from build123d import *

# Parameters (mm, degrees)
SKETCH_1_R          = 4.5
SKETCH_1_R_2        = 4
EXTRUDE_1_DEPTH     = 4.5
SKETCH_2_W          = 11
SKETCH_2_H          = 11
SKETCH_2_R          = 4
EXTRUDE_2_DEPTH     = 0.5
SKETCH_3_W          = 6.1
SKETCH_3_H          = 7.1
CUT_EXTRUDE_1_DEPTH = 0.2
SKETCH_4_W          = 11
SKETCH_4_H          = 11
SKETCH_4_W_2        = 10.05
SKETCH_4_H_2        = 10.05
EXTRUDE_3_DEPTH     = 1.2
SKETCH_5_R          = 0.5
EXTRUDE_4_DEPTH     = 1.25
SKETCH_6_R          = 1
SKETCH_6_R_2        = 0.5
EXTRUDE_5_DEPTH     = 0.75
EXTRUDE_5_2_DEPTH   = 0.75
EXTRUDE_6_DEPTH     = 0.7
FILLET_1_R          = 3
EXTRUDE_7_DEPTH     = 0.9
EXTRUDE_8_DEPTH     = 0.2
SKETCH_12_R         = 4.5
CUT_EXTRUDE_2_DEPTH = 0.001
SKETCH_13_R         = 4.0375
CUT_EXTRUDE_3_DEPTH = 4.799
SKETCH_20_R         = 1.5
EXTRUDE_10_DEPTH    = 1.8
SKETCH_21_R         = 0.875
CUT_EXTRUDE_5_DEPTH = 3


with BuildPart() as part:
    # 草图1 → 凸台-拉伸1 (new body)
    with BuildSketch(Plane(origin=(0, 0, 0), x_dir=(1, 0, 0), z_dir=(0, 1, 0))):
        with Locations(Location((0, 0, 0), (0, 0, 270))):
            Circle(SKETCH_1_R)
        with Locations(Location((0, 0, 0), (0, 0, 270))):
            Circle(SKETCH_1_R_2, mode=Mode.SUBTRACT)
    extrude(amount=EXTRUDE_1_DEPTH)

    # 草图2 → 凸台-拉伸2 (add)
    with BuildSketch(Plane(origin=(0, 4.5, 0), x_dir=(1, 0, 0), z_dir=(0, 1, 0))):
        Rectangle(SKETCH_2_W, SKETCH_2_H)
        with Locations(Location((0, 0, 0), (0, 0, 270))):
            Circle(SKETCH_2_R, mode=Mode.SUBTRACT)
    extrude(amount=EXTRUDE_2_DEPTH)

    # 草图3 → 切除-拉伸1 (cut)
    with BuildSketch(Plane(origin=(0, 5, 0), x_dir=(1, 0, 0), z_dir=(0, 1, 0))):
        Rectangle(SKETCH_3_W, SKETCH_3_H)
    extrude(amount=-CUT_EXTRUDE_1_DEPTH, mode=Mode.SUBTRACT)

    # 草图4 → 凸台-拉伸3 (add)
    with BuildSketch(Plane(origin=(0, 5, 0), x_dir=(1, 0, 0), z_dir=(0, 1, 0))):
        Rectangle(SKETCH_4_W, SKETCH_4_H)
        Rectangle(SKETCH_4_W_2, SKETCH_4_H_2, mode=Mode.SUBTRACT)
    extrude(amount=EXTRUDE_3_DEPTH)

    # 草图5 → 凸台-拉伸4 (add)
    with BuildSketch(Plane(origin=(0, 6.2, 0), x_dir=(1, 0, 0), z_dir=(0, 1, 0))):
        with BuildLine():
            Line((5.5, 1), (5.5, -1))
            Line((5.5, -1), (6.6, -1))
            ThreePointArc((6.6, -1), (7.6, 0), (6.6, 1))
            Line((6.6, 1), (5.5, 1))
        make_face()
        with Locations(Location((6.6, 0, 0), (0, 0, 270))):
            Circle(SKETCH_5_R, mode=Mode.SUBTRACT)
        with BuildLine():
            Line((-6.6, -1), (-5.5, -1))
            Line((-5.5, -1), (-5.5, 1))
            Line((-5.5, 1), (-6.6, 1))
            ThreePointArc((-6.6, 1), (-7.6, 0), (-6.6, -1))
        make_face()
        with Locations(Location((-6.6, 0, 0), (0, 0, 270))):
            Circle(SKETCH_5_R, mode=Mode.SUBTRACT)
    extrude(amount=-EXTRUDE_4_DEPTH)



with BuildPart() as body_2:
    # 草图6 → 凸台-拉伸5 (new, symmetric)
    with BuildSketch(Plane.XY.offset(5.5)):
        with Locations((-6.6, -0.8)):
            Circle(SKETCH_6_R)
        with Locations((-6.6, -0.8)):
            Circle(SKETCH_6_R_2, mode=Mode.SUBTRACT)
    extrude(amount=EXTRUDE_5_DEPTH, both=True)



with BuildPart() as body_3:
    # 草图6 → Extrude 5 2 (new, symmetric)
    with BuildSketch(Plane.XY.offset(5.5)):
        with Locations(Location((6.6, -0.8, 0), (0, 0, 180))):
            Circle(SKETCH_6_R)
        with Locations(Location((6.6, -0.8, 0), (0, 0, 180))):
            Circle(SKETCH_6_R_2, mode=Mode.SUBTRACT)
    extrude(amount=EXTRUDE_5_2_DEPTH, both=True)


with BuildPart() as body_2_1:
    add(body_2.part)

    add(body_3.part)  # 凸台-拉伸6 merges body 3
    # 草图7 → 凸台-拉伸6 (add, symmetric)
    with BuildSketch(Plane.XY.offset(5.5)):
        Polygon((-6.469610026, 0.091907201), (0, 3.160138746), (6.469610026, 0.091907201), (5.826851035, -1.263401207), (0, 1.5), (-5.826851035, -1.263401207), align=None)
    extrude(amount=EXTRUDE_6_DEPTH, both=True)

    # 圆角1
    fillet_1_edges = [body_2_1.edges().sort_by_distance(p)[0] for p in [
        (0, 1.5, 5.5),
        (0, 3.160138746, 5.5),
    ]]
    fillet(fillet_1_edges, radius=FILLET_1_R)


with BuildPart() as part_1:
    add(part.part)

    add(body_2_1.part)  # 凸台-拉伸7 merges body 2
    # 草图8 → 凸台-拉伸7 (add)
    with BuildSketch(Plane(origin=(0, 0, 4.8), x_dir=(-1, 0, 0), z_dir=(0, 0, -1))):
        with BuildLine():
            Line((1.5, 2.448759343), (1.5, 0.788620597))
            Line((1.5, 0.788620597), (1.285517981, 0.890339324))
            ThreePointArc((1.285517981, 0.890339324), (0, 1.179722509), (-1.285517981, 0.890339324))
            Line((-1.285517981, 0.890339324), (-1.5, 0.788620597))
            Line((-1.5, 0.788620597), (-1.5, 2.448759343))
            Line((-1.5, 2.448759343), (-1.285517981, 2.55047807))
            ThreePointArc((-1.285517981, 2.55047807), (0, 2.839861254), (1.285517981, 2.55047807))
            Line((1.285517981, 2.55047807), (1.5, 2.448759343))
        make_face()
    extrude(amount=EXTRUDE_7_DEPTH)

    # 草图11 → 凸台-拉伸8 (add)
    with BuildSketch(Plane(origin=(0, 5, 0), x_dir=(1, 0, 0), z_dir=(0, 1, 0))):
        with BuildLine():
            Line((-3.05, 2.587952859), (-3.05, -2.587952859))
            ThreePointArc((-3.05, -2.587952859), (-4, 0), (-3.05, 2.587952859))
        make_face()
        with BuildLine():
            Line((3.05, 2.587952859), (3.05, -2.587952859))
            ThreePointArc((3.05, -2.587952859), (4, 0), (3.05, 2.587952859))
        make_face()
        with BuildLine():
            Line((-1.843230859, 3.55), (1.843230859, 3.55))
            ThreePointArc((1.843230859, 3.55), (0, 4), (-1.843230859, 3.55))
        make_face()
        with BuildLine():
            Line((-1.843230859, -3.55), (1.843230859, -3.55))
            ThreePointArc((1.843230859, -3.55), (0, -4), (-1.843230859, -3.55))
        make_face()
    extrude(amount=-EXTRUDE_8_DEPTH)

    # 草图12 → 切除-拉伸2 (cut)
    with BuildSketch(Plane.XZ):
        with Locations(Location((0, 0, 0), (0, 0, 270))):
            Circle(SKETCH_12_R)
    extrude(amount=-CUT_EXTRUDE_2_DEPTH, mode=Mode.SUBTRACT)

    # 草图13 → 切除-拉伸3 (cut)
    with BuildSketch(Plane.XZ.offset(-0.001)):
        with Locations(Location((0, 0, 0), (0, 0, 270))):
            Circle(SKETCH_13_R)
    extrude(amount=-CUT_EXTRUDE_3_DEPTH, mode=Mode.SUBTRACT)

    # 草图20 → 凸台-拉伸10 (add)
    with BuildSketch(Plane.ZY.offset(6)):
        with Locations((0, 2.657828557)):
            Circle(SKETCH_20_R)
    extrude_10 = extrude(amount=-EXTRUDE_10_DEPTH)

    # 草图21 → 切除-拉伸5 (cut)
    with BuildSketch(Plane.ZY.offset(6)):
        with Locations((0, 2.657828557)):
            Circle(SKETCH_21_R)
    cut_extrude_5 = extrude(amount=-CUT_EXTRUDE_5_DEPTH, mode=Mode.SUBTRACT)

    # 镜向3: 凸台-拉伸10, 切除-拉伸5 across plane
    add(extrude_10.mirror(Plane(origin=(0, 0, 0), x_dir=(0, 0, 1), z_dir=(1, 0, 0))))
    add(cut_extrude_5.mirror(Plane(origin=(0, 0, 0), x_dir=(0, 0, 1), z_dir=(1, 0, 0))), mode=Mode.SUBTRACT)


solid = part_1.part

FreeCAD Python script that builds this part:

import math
import FreeCAD as App
import Part
import Sketcher

V = App.Vector


def edges_at(feature, points):
    """Names of the edges that pass closest to the given points."""
    edges = feature.Shape.Edges
    near = lambda p: min(range(len(edges)), key=lambda i: edges[i].distToShape(Part.Vertex(*p))[0])
    return sorted({f"Edge{near(p) + 1}" for p in points})


def add_polygon(sketch, points):
    """Adds a closed chain of lines whose ends are joined by coincident constraints."""
    first, n = sketch.GeometryCount, len(points)
    for a, b in zip(points, points[1:] + points[:1]):
        sketch.addGeometry(Part.LineSegment(App.Vector(*a, 0), App.Vector(*b, 0)), False)
    for i in range(n):
        sketch.addConstraint(Sketcher.Constraint("Coincident", first + i, 2, first + (i + 1) % n, 1))

doc = App.newDocument("Part")
body = doc.addObject("PartDesign::Body", "Body")

# Sketch on XZ plane
sketch1 = body.newObject("Sketcher::SketchObject", "Sketch")
sketch1.AttachmentSupport = (doc.getObject("XZ_Plane"), [""])
sketch1.MapMode = "FlatFace"
sketch1.addGeometry([
    Part.Circle(V(0, 0, 0), V(0, 0, 1), 4.5),
    Part.Circle(V(0, 0, 0), V(0, 0, 1), 4),
], False)
sketch1.addConstraint([
    Sketcher.Constraint("Coincident", 0, 3, -1, 1),
    Sketcher.Constraint("Coincident", 1, 3, -1, 1),
    Sketcher.Constraint("Diameter", 0, 9.0),
    Sketcher.Constraint("Diameter", 1, 8.0),
])
pad1 = body.newObject("PartDesign::Pad", "Pad")
pad1.Profile = sketch1
pad1.Length = 4.5
pad1.Reversed = True

# Sketch on XZ plane
sketch2 = body.newObject("Sketcher::SketchObject", "Sketch001")
sketch2.AttachmentSupport = (doc.getObject("XZ_Plane"), [""])
sketch2.MapMode = "FlatFace"
sketch2.AttachmentOffset = App.Placement(V(0, 0, -4.5), App.Rotation())
add_polygon(sketch2, [(-5.5, -5.5), (-5.5, 5.5), (5.5, 5.5), (5.5, -5.5)])  # lines 0-3
sketch2.addGeometry(Part.Circle(V(0, 0, 0), V(0, 0, 1), 4), False)  # 4
sketch2.addConstraint([
    Sketcher.Constraint("Vertical", 0),
    Sketcher.Constraint("Horizontal", 1),
    Sketcher.Constraint("Vertical", 2),
    Sketcher.Constraint("Horizontal", 3),
    Sketcher.Constraint("Coincident", 4, 3, -1, 1),
    Sketcher.Constraint("Symmetric", 0, 2, 2, 2, -1, 1),
    Sketcher.Constraint("Equal", 3, 0),
    Sketcher.Constraint("Diameter", 4, 8.0),
    Sketcher.Constraint("DistanceX", 1, 1, 1, 2, 11.0),
])
pad2 = body.newObject("PartDesign::Pad", "Pad001")
pad2.Profile = sketch2
pad2.Length = 0.5
pad2.Reversed = True

# Sketch on XZ plane
sketch3 = body.newObject("Sketcher::SketchObject", "Sketch002")
sketch3.AttachmentSupport = (doc.getObject("XZ_Plane"), [""])
sketch3.MapMode = "FlatFace"
sketch3.AttachmentOffset = App.Placement(V(0, 0, -5), App.Rotation())
add_polygon(sketch3, [(-3, -4), (-3, 4), (3, 4), (3, -4)])  # lines 0-3
sketch3.addConstraint([
    Sketcher.Constraint("Vertical", 0),
    Sketcher.Constraint("Horizontal", 1),
    Sketcher.Constraint("Vertical", 2),
    Sketcher.Constraint("Horizontal", 3),
    Sketcher.Constraint("Symmetric", 0, 2, 2, 2, -1, 1),
    Sketcher.Constraint("DistanceX", 1, 1, 1, 2, 6.1),
    Sketcher.Constraint("DistanceY", 0, 1, 0, 2, 7.1),
])
pocket1 = body.newObject("PartDesign::Pocket", "Pocket")
pocket1.Profile = sketch3
pocket1.Length = 0.2
pocket1.Reversed = True

# Sketch on XZ plane
sketch4 = body.newObject("Sketcher::SketchObject", "Sketch003")
sketch4.AttachmentSupport = (doc.getObject("XZ_Plane"), [""])
sketch4.MapMode = "FlatFace"
sketch4.AttachmentOffset = App.Placement(V(0, 0, -5), App.Rotation())
add_polygon(sketch4, [(-6, -6), (-6, 6), (6, 6), (6, -6)])  # lines 0-3
add_polygon(sketch4, [(5, 5), (-5, 5), (-5, -5), (5, -5)])  # lines 4-7
sketch4.addConstraint([
    Sketcher.Constraint("Vertical", 0),
    Sketcher.Constraint("Horizontal", 1),
    Sketcher.Constraint("Vertical", 2),
    Sketcher.Constraint("Horizontal", 3),
    Sketcher.Constraint("Horizontal", 4),
    Sketcher.Constraint("Vertical", 5),
    Sketcher.Constraint("Horizontal", 6),
    Sketcher.Constraint("Vertical", 7),
    Sketcher.Constraint("Symmetric", 0, 2, 2, 2, -1, 1),
    Sketcher.Constraint("Symmetric", 4, 2, 6, 2, -1, 1),
    Sketcher.Constraint("Equal", 3, 0),
    Sketcher.Constraint("Equal", 6, 5),
    Sketcher.Constraint("DistanceX", 1, 1, 1, 2, 11.0),
    Sketcher.Constraint("DistanceX", 4, 2, 4, 1, 10.05),
])
pad3 = body.newObject("PartDesign::Pad", "Pad002")
pad3.Profile = sketch4
pad3.Length = 1.2
pad3.Reversed = True

# Sketch on XZ plane
sketch5 = body.newObject("Sketcher::SketchObject", "Sketch004")
sketch5.AttachmentSupport = (doc.getObject("XZ_Plane"), [""])
sketch5.MapMode = "FlatFace"
sketch5.AttachmentOffset = App.Placement(V(0, 0, -6.2), App.Rotation())
sketch5.addGeometry([
    Part.LineSegment(V(5.5, -1, 0), V(5.5, 1, 0)),  # 0
    Part.LineSegment(V(5.5, 1, 0), V(6.6, 1, 0)),  # 1
    Part.ArcOfCircle(Part.Circle(V(6.6, 0, 0), V(0, 0, 1), 1), math.radians(-90), math.radians(90)),  # 2
    Part.LineSegment(V(6.6, -1, 0), V(5.5, -1, 0)),  # 3
    Part.Circle(V(6.6, 0, 0), V(0, 0, 1), 0.5),  # 4
    Part.LineSegment(V(-6.6, 1, 0), V(-5.5, 1, 0)),  # 5
    Part.LineSegment(V(-5.5, 1, 0), V(-5.5, -1, 0)),  # 6
    Part.LineSegment(V(-5.5, -1, 0), V(-6.6, -1, 0)),  # 7
    Part.ArcOfCircle(Part.Circle(V(-6.6, 0, 0), V(0, 0, 1), 1), math.radians(90), math.radians(270)),  # 8
    Part.Circle(V(-6.6, 0, 0), V(0, 0, 1), 0.5),  # 9
], False)
sketch5.addConstraint([
    Sketcher.Constraint("Coincident", 0, 2, 1, 1),
    Sketcher.Constraint("Tangent", 1, 2, 2, 2),
    Sketcher.Constraint("Tangent", 2, 1, 3, 1),
    Sketcher.Constraint("Coincident", 3, 2, 0, 1),
    Sketcher.Constraint("Coincident", 5, 2, 6, 1),
    Sketcher.Constraint("Coincident", 6, 2, 7, 1),
    Sketcher.Constraint("Tangent", 7, 2, 8, 2),
    Sketcher.Constraint("Tangent", 8, 1, 5, 1),
    Sketcher.Constraint("Vertical", 0),
    Sketcher.Constraint("Horizontal", 1),
    Sketcher.Constraint("Horizontal", 3),
    Sketcher.Constraint("Horizontal", 5),
    Sketcher.Constraint("Vertical", 6),
    Sketcher.Constraint("Horizontal", 7),
    Sketcher.Constraint("Coincident", 4, 3, 2, 3),
    Sketcher.Constraint("Coincident", 9, 3, 8, 3),
    Sketcher.Constraint("Equal", 2, 8),
    Sketcher.Constraint("Equal", 4, 9),
    Sketcher.Constraint("Symmetric", 2, 3, 8, 3, -1, 1),
    Sketcher.Constraint("Symmetric", 0, 2, 5, 2, -2),
    Sketcher.Constraint("Diameter", 4, 1.0),
    Sketcher.Constraint("Radius", 2, 1.0),
    Sketcher.Constraint("DistanceX", 1, 1, 1, 2, 1.1),
    Sketcher.Constraint("DistanceX", 5, 2, 0, 2, 11.0),
])
pad4 = body.newObject("PartDesign::Pad", "Pad003")
pad4.Profile = sketch5
pad4.Length = 1.25
body2 = doc.addObject("PartDesign::Body", "Body001")

# Sketch on XY plane
sketch6 = body2.newObject("Sketcher::SketchObject", "Sketch005")
sketch6.AttachmentSupport = (doc.getObject("XY_Plane001"), [""])
sketch6.MapMode = "FlatFace"
sketch6.AttachmentOffset = App.Placement(V(0, 0, 5.5), App.Rotation())
sketch6.addGeometry([
    Part.Circle(V(-6.6, -0.8, 0), V(0, 0, 1), 1),
    Part.Circle(V(-6.6, -0.8, 0), V(0, 0, 1), 0.5),
], False)
sketch6.addConstraint([
    Sketcher.Constraint("Coincident", 1, 3, 0, 3),
    Sketcher.Constraint("Diameter", 0, 2.0),
    Sketcher.Constraint("Diameter", 1, 1.0),
    Sketcher.Constraint("DistanceX", 0, 3, -1, 1, 6.6),
    Sketcher.Constraint("DistanceY", 0, 3, -1, 1, 0.8),
])
pad5 = body2.newObject("PartDesign::Pad", "Pad004")
pad5.Profile = sketch6
pad5.Length = 1.5
pad5.Midplane = True
body3 = doc.addObject("PartDesign::Body", "Body002")

# Sketch on XY plane
sketch7 = body3.newObject("Sketcher::SketchObject", "Sketch006")
sketch7.AttachmentSupport = (doc.getObject("XY_Plane002"), [""])
sketch7.MapMode = "FlatFace"
sketch7.AttachmentOffset = App.Placement(V(0, 0, 5.5), App.Rotation())
sketch7.addGeometry([
    Part.Circle(V(6.6, -0.8, 0), V(0, 0, 1), 1),
    Part.Circle(V(6.6, -0.8, 0), V(0, 0, 1), 0.5),
], False)
sketch7.addConstraint([
    Sketcher.Constraint("Coincident", 1, 3, 0, 3),
    Sketcher.Constraint("Diameter", 0, 2.0),
    Sketcher.Constraint("Diameter", 1, 1.0),
    Sketcher.Constraint("DistanceX", -1, 1, 0, 3, 6.6),
    Sketcher.Constraint("DistanceY", 0, 3, -1, 1, 0.8),
])
pad6 = body3.newObject("PartDesign::Pad", "Pad005")
pad6.Profile = sketch7
pad6.Length = 1.5
pad6.Midplane = True
body2.AllowCompound = True
doc.recompute()

boolean = body2.newObject("PartDesign::Boolean", "Boolean")
boolean.Type = "Fuse"
boolean.addObjects([body3])

# Sketch on XY plane
sketch8 = body2.newObject("Sketcher::SketchObject", "Sketch007")
sketch8.AttachmentSupport = (doc.getObject("XY_Plane001"), [""])
sketch8.MapMode = "FlatFace"
sketch8.AttachmentOffset = App.Placement(V(0, 0, 5.5), App.Rotation())
add_polygon(sketch8, [(0, 3.2), (-6.5, 0.1), (-5.8, -1.3), (0, 1.5), (5.8, -1.3), (6.5, 0.1)])  # lines 0-5
sketch8.addConstraint([
    Sketcher.Constraint("Symmetric", 1, 2, 3, 2, -2),
    Sketcher.Constraint("Symmetric", 0, 2, 4, 2, -2),
    Sketcher.Constraint("PointOnObject", 2, 2, -2),
    Sketcher.Constraint("PointOnObject", 5, 2, -2),
    Sketcher.Constraint("Perpendicular", 0, 1),
    Sketcher.Constraint("Perpendicular", 1, 2),
    Sketcher.Constraint("Distance", 1, 1.5),
    Sketcher.Constraint("DistanceY", -1, 1, 2, 2, 1.5),
    Sketcher.Constraint("Distance", 0, 7.1603),
    Sketcher.Constraint("DistanceY", 1, 2, -1, 1, 1.263401),
])
pad7 = body2.newObject("PartDesign::Pad", "Pad006")
pad7.Profile = sketch8
pad7.Length = 1.4
pad7.Midplane = True
doc.recompute()

fillet = body2.newObject("PartDesign::Fillet", "Fillet")
fillet.Base = (pad7, edges_at(pad7, [(0, 1.5, 5.5), (0, 3.16, 5.5)]))
fillet.Radius = 3
body.AllowCompound = True
doc.recompute()

boolean2 = body.newObject("PartDesign::Boolean", "Boolean001")
boolean2.Type = "Fuse"
boolean2.addObjects([body2])

# Sketch on XY plane
sketch9 = body.newObject("Sketcher::SketchObject", "Sketch008")
sketch9.AttachmentSupport = (doc.getObject("XY_Plane"), [""])
sketch9.MapMode = "FlatFace"
sketch9.AttachmentOffset = App.Placement(V(0, 0, 4.8), App.Rotation())
sketch9.addGeometry([
    Part.LineSegment(V(-1.5, 0.79, 0), V(-1.5, 2.45, 0)),  # 0
    Part.LineSegment(V(-1.5, 2.45, 0), V(-1.29, 2.55, 0)),  # 1
    Part.ArcOfCircle(Part.Circle(V(0, -0.16, 0), V(0, 0, 1), 3), math.radians(65), math.radians(115)),  # 2
    Part.LineSegment(V(1.29, 2.55, 0), V(1.5, 2.45, 0)),  # 3
    Part.LineSegment(V(1.5, 2.45, 0), V(1.5, 0.79, 0)),  # 4
    Part.LineSegment(V(1.5, 0.79, 0), V(1.29, 0.89, 0)),  # 5
    Part.ArcOfCircle(Part.Circle(V(0, -1.82, 0), V(0, 0, 1), 3), math.radians(65), math.radians(115)),  # 6
    Part.LineSegment(V(-1.29, 0.89, 0), V(-1.5, 0.79, 0)),  # 7
], False)
sketch9.addConstraint([
    Sketcher.Constraint("Coincident", 0, 2, 1, 1),
    Sketcher.Constraint("Tangent", 1, 2, 2, 2),
    Sketcher.Constraint("Tangent", 2, 1, 3, 1),
    Sketcher.Constraint("Coincident", 3, 2, 4, 1),
    Sketcher.Constraint("Coincident", 4, 2, 5, 1),
    Sketcher.Constraint("Tangent", 5, 2, 6, 1),
    Sketcher.Constraint("Tangent", 6, 2, 7, 1),
    Sketcher.Constraint("Coincident", 7, 2, 0, 1),
    Sketcher.Constraint("Vertical", 0),
    Sketcher.Constraint("Vertical", 4),
    Sketcher.Constraint("Equal", 2, 6),
    Sketcher.Constraint("Symmetric", 1, 2, 2, 1, -2),
    Sketcher.Constraint("Symmetric", 5, 2, 6, 2, -2),
    Sketcher.Constraint("Parallel", 3, 5),
    Sketcher.Constraint("Horizontal", 0, 2, 3, 2),
    Sketcher.Constraint("Radius", 2, 3.0),
    Sketcher.Constraint("DistanceX", 0, 2, 3, 2, 3.0),
    Sketcher.Constraint("DistanceY", 0, 1, 0, 2, 1.660139),
    Sketcher.Constraint("DistanceY", 2, 3, 0, 2, 2.608898),
    Sketcher.Constraint("DistanceY", 2, 3, -1, 1, 0.160139),
])
pad8 = body.newObject("PartDesign::Pad", "Pad007")
pad8.Profile = sketch9
pad8.Length = 0.9
pad8.Reversed = True

# Sketch on XZ plane
sketch10 = body.newObject("Sketcher::SketchObject", "Sketch009")
sketch10.AttachmentSupport = (doc.getObject("XZ_Plane"), [""])
sketch10.MapMode = "FlatFace"
sketch10.AttachmentOffset = App.Placement(V(0, 0, -5), App.Rotation())
sketch10.addGeometry([
    Part.LineSegment(V(-3, 2.6, 0), V(-3, -2.6, 0)),  # 0
    Part.ArcOfCircle(Part.Circle(V(0, 0, 0), V(0, 0, 1), 4), math.radians(140), math.radians(220)),  # 1
    Part.LineSegment(V(3, -2.6, 0), V(3, 2.6, 0)),  # 2
    Part.ArcOfCircle(Part.Circle(V(0, 0, 0), V(0, 0, 1), 4), math.radians(-40), math.radians(40)),  # 3
    Part.LineSegment(V(-1.8, -3.5, 0), V(1.8, -3.5, 0)),  # 4
    Part.ArcOfCircle(Part.Circle(V(0, 0, 0), V(0, 0, 1), 4), math.radians(-117), math.radians(-63)),  # 5
    Part.LineSegment(V(1.8, 3.5, 0), V(-1.8, 3.5, 0)),  # 6
    Part.ArcOfCircle(Part.Circle(V(0, 0, 0), V(0, 0, 1), 4), math.radians(63), math.radians(117)),  # 7
], False)
sketch10.addConstraint([
    Sketcher.Constraint("Coincident", 0, 1, 1, 1),
    Sketcher.Constraint("Coincident", 1, 2, 0, 2),
    Sketcher.Constraint("Coincident", 2, 1, 3, 1),
    Sketcher.Constraint("Coincident", 3, 2, 2, 2),
    Sketcher.Constraint("Coincident", 4, 1, 5, 1),
    Sketcher.Constraint("Coincident", 5, 2, 4, 2),
    Sketcher.Constraint("Coincident", 6, 1, 7, 1),
    Sketcher.Constraint("Coincident", 7, 2, 6, 2),
    Sketcher.Constraint("Vertical", 0),
    Sketcher.Constraint("Vertical", 2),
    Sketcher.Constraint("Horizontal", 4),
    Sketcher.Constraint("Horizontal", 6),
    Sketcher.Constraint("Coincident", 1, 3, -1, 1),
    Sketcher.Constraint("Coincident", 3, 3, -1, 1),
    Sketcher.Constraint("Coincident", 5, 3, -1, 1),
    Sketcher.Constraint("Coincident", 7, 3, -1, 1),
    Sketcher.Constraint("Equal", 1, 3),
    Sketcher.Constraint("Equal", 3, 5),
    Sketcher.Constraint("Equal", 5, 7),
    Sketcher.Constraint("Horizontal", 1, 2, 2, 1),
    Sketcher.Constraint("Vertical", 5, 2, 6, 1),
    Sketcher.Constraint("Radius", 1, 4.0),
    Sketcher.Constraint("DistanceX", 1, 2, 2, 1, 6.1),
    Sketcher.Constraint("DistanceY", 4, 1, -1, 1, 3.55),
])
pad9 = body.newObject("PartDesign::Pad", "Pad008")
pad9.Profile = sketch10
pad9.Length = 0.2

# Sketch on XZ plane
sketch11 = body.newObject("Sketcher::SketchObject", "Sketch010")
sketch11.AttachmentSupport = (doc.getObject("XZ_Plane"), [""])
sketch11.MapMode = "FlatFace"
sketch11.addGeometry(Part.Circle(V(0, 0, 0), V(0, 0, 1), 4.5), False)
sketch11.addConstraint([
    Sketcher.Constraint("Coincident", 0, 3, -1, 1),
    Sketcher.Constraint("Diameter", 0, 9.0),
])
pocket2 = body.newObject("PartDesign::Pocket", "Pocket001")
pocket2.Profile = sketch11
pocket2.Length = 0.001

# Sketch on XZ plane
sketch12 = body.newObject("Sketcher::SketchObject", "Sketch011")
sketch12.AttachmentSupport = (doc.getObject("XZ_Plane"), [""])
sketch12.MapMode = "FlatFace"
sketch12.AttachmentOffset = App.Placement(V(0, 0, -0.001), App.Rotation())
sketch12.addGeometry(Part.Circle(V(0, 0, 0), V(0, 0, 1), 4), False)
sketch12.addConstraint([
    Sketcher.Constraint("Coincident", 0, 3, -1, 1),
    Sketcher.Constraint("Diameter", 0, 8.075),
])
pocket3 = body.newObject("PartDesign::Pocket", "Pocket002")
pocket3.Profile = sketch12
pocket3.Length = 4.799

# Sketch on YZ plane
sketch13 = body.newObject("Sketcher::SketchObject", "Sketch012")
sketch13.AttachmentSupport = (doc.getObject("YZ_Plane"), [""])
sketch13.MapMode = "FlatFace"
sketch13.AttachmentOffset = App.Placement(V(0, 0, -6), App.Rotation())
sketch13.addGeometry(Part.Circle(V(2.7, 0, 0), V(0, 0, 1), 1.5), False)
sketch13.addConstraint([
    Sketcher.Constraint("PointOnObject", 0, 3, -1),
    Sketcher.Constraint("Diameter", 0, 3.0),
    Sketcher.Constraint("DistanceX", -1, 1, 0, 3, 2.657829),
])
pad10 = body.newObject("PartDesign::Pad", "Pad009")
pad10.Profile = sketch13
pad10.Length = 1.8

# Sketch on YZ plane
sketch14 = body.newObject("Sketcher::SketchObject", "Sketch013")
sketch14.AttachmentSupport = (doc.getObject("YZ_Plane"), [""])
sketch14.MapMode = "FlatFace"
sketch14.AttachmentOffset = App.Placement(V(0, 0, -6), App.Rotation())
sketch14.addGeometry(Part.Circle(V(2.7, 0, 0), V(0, 0, 1), 0.9), False)
sketch14.addConstraint([
    Sketcher.Constraint("PointOnObject", 0, 3, -1),
    Sketcher.Constraint("Diameter", 0, 1.75),
    Sketcher.Constraint("DistanceX", -1, 1, 0, 3, 2.657829),
])
pocket4 = body.newObject("PartDesign::Pocket", "Pocket003")
pocket4.Profile = sketch14
pocket4.Length = 3
pocket4.Reversed = True
doc.recompute()

mirrored = body.newObject("PartDesign::Mirrored", "Mirrored")
mirrored.Originals = [pad10, pocket4]
mirrored.MirrorPlane = (doc.getObject("YZ_Plane"), [""])
body.Tip = mirrored

doc.recompute()
